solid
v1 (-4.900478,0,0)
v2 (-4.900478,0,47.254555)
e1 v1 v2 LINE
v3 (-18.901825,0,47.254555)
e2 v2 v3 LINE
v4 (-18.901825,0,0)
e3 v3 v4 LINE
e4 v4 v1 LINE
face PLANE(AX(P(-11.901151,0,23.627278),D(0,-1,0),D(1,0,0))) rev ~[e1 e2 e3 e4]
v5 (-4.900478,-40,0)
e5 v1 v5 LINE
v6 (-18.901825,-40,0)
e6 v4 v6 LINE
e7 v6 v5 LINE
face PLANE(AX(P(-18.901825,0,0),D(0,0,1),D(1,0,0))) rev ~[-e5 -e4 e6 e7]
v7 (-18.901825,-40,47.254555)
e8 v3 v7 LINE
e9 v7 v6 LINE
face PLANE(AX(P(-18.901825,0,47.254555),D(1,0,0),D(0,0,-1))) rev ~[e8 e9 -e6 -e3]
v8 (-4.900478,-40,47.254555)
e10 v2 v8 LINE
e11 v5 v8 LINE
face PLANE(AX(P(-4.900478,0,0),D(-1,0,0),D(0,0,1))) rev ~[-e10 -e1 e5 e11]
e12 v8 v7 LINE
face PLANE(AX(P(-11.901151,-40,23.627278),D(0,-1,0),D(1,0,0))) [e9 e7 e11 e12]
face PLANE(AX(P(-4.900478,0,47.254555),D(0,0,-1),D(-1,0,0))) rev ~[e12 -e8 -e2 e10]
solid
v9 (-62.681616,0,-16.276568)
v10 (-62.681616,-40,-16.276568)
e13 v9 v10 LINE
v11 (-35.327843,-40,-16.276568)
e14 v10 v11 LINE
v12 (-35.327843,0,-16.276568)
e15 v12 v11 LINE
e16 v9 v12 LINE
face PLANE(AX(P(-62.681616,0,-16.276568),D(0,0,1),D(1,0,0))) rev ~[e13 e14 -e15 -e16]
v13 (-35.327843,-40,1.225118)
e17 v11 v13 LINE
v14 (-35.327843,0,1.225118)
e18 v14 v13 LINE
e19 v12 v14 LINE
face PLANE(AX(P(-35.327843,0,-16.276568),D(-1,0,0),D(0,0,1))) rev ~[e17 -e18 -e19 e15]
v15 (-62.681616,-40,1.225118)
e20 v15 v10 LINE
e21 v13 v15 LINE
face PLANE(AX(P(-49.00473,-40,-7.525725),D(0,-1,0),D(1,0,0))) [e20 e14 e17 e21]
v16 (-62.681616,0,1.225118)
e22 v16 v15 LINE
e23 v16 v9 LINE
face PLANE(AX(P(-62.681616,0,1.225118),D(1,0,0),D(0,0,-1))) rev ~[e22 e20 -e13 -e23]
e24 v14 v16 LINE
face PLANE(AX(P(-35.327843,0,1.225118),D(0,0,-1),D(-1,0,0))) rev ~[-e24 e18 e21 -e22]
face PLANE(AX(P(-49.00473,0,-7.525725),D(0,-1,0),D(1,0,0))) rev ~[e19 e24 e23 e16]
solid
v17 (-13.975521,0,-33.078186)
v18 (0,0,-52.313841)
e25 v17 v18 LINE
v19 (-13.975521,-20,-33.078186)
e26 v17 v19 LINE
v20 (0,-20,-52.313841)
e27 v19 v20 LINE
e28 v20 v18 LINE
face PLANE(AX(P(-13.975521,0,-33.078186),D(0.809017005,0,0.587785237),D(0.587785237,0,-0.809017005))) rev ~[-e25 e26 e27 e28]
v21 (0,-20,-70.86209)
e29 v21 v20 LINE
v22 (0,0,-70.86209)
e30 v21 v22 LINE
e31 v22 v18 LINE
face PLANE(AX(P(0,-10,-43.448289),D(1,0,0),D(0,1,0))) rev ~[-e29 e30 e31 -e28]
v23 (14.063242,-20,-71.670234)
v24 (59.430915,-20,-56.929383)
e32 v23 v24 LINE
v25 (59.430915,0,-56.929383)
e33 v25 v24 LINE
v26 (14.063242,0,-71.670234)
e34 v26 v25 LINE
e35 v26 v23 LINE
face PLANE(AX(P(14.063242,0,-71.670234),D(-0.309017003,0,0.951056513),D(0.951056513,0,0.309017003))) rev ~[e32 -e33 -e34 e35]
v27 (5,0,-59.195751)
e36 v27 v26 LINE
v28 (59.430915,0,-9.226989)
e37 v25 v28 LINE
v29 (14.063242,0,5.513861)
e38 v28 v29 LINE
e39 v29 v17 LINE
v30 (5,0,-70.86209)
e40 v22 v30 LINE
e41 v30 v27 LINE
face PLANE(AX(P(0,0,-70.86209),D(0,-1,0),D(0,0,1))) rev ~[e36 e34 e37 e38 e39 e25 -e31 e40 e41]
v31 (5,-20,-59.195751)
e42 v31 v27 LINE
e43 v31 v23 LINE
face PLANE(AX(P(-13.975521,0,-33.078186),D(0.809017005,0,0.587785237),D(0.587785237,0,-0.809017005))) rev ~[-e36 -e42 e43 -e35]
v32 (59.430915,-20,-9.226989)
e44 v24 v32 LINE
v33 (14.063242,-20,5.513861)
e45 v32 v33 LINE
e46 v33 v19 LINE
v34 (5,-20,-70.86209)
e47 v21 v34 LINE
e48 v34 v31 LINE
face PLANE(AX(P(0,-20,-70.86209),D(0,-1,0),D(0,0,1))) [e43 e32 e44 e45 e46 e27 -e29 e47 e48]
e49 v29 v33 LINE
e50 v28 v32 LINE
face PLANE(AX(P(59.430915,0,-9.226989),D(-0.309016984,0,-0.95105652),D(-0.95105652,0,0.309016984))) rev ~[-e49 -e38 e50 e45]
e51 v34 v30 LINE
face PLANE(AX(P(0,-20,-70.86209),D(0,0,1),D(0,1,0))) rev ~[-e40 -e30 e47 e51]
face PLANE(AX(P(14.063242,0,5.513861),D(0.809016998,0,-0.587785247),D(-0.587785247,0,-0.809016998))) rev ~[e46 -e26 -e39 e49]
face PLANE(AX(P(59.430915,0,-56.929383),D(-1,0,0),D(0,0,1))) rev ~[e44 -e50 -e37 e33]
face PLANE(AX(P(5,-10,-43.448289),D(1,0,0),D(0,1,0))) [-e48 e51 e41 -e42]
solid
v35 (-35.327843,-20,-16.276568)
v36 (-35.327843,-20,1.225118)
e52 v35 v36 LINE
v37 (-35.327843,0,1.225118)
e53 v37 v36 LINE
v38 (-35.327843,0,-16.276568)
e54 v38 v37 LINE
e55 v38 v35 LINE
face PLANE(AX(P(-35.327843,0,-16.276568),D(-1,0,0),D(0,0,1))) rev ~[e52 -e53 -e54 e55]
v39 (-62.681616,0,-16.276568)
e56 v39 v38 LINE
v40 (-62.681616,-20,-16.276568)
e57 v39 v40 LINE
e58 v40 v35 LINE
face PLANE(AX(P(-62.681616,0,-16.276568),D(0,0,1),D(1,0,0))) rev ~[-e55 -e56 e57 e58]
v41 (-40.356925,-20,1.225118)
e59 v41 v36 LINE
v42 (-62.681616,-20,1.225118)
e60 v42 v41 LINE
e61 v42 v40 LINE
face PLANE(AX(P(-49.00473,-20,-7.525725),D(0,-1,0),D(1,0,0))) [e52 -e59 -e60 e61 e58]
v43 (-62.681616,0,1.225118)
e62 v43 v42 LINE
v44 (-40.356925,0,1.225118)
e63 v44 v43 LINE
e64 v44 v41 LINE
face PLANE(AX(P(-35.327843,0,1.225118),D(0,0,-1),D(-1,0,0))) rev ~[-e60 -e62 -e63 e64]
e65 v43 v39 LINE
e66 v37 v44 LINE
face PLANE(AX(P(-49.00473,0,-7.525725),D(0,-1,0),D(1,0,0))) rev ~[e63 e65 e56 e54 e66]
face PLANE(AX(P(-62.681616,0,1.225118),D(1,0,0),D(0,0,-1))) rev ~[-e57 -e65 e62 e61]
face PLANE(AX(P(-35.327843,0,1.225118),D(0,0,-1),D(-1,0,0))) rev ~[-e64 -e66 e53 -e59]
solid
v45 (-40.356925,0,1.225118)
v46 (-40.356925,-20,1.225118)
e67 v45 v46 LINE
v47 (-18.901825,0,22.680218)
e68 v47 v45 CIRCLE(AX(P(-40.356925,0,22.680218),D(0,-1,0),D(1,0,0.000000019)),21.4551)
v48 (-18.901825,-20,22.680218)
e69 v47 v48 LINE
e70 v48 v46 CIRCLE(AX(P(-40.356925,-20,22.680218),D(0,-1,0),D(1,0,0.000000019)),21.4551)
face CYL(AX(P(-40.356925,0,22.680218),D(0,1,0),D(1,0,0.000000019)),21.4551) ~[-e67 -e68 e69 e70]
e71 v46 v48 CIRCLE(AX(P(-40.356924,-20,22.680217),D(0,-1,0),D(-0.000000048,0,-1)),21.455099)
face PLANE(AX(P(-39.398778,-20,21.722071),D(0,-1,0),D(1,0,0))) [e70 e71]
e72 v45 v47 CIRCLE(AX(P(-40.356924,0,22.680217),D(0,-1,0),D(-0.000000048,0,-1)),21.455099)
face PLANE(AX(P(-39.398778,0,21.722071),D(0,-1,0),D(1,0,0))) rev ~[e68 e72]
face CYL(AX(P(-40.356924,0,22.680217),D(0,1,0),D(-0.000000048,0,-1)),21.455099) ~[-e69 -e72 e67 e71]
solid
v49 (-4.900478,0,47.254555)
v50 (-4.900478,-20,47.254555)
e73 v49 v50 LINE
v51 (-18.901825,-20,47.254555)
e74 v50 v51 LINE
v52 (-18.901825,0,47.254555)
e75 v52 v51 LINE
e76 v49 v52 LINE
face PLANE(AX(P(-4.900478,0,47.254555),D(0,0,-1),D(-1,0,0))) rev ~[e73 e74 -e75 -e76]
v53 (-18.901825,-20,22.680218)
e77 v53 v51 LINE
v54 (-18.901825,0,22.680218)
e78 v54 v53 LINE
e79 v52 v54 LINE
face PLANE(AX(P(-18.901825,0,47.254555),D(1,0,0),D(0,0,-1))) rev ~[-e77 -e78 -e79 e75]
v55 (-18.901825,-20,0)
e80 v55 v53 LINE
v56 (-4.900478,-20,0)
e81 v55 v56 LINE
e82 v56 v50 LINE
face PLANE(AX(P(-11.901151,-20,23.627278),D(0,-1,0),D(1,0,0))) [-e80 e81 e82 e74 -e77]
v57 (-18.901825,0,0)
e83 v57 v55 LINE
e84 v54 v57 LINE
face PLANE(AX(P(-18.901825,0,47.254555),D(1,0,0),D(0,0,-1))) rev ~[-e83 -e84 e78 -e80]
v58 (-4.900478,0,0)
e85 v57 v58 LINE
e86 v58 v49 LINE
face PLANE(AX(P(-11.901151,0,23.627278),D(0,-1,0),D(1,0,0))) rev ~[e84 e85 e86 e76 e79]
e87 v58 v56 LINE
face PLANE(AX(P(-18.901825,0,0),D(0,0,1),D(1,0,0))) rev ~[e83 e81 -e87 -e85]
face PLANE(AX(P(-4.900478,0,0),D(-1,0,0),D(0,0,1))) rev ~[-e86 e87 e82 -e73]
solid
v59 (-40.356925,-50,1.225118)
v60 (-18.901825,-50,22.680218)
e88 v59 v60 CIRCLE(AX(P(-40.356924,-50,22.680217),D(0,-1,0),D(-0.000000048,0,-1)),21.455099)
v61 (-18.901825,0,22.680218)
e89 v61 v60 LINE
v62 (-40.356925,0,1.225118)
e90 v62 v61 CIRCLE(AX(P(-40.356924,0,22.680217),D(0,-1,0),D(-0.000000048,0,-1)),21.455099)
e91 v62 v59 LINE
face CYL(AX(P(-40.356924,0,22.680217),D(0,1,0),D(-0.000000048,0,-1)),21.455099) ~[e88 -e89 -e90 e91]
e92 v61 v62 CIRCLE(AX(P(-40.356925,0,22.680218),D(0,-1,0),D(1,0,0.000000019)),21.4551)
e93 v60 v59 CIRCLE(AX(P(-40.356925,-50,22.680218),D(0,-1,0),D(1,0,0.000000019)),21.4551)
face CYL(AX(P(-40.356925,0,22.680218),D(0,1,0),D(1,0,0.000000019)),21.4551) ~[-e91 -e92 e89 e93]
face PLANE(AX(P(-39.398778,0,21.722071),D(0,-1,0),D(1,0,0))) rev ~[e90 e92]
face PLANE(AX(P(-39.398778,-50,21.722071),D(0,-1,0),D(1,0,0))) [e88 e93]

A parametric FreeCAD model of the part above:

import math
import FreeCAD as App
import Part
import Sketcher

V = App.Vector
Q = App.Units.Quantity


def add_polygon(sketch, points):
    """Adds a closed chain of lines whose ends are joined by coincident constraints."""
    first, n = sketch.GeometryCount, len(points)
    for a, b in zip(points, points[1:] + points[:1]):
        sketch.addGeometry(Part.LineSegment(App.Vector(*a, 0), App.Vector(*b, 0)), False)
    for i in range(n):
        sketch.addConstraint(Sketcher.Constraint("Coincident", first + i, 2, first + (i + 1) % n, 1))

doc = App.newDocument("Part")
params = doc.addObject("Spreadsheet::Sheet", "Params")
for row, (alias, value) in enumerate([
    ("pad1_length", "40 mm"),
    ("pad2_length", "50 mm"),
    ("pad3_length", "20 mm"),
    ("sketch4_width", "20 mm"),
    ("pad4_length", "5 mm"),
], start=1):
    params.set(f"A{row}", alias)
    params.set(f"B{row}", "=" + value)
    params.setAlias(f"B{row}", alias)

body = doc.addObject("PartDesign::Body", "Body")
body.AllowCompound = True

# Sketch on XZ plane
sketch1 = body.newObject("Sketcher::SketchObject", "Sketch")
sketch1.AttachmentSupport = (doc.getObject("XZ_Plane"), [""])
sketch1.MapMode = "FlatFace"
add_polygon(sketch1, [(-19, 47), (-19, 0), (-5, 0), (-5, 47)])  # lines 0-3
add_polygon(sketch1, [(-35, 1), (-63, 1), (-63, -16), (-35, -16)])  # lines 4-7
sketch1.addConstraint([
    Sketcher.Constraint("Vertical", 0),
    Sketcher.Constraint("Horizontal", 1),
    Sketcher.Constraint("Vertical", 2),
    Sketcher.Constraint("Horizontal", 3),
    Sketcher.Constraint("Horizontal", 4),
    Sketcher.Constraint("Vertical", 5),
    Sketcher.Constraint("Horizontal", 6),
    Sketcher.Constraint("Vertical", 7),
    Sketcher.Constraint("PointOnObject", 0, 2, -1),
    Sketcher.Constraint("DistanceX", 1, 1, 1, 2, 14.001347),
    Sketcher.Constraint("DistanceX", 4, 2, 4, 1, 27.353773),
    Sketcher.Constraint("DistanceY", 0, 2, 0, 1, 47.254555),
    Sketcher.Constraint("DistanceY", 5, 2, 5, 1, 17.501686),
    Sketcher.Constraint("DistanceY", 5, 2, -1, 1, 16.276568),
    Sketcher.Constraint("DistanceX", 4, 2, 0, 2, 43.779791),
    Sketcher.Constraint("DistanceX", 0, 2, -1, 1, 18.901825),
])
pad1 = body.newObject("PartDesign::Pad", "Pad")
pad1.Profile = sketch1
pad1.setExpression("Length", "Params.pad1_length")
body2 = doc.addObject("PartDesign::Body", "Body001")

# Sketch on XZ plane
sketch2 = body2.newObject("Sketcher::SketchObject", "Sketch001")
sketch2.AttachmentSupport = (doc.getObject("XZ_Plane001"), [""])
sketch2.MapMode = "FlatFace"
sketch2.addGeometry([
    Part.ArcOfCircle(Part.Circle(V(-40, 23, 0), V(0, 0, 1), 21), math.radians(-90), math.radians(0)),
    Part.ArcOfCircle(Part.Circle(V(-40, 23, 0), V(0, 0, 1), 21), math.radians(0), math.radians(270)),
], False)
sketch2.addConstraint([
    Sketcher.Constraint("Tangent", 0, 1, 1, 2),
    Sketcher.Constraint("Coincident", 1, 1, 0, 2),
    Sketcher.Constraint("Horizontal", 0, 3, 1, 1),
    Sketcher.Constraint("Vertical", 1, 3, 0, 1),
    Sketcher.Constraint("Radius", 0, 21.455099),
    Sketcher.Constraint("DistanceY", -1, 1, 0, 1, 1.225118),
    Sketcher.Constraint("DistanceX", 0, 3, -1, 1, 40.356924),
])
pad2 = body2.newObject("PartDesign::Pad", "Pad001")
pad2.Profile = sketch2
pad2.setExpression("Length", "Params.pad2_length")
body3 = doc.addObject("PartDesign::Body", "Body002")
body3.AllowCompound = True

# Sketch on XZ plane
sketch3 = body3.newObject("Sketcher::SketchObject", "Sketch002")
sketch3.AttachmentSupport = (doc.getObject("XZ_Plane002"), [""])
sketch3.MapMode = "FlatFace"
sketch3.addGeometry(Part.ArcOfCircle(Part.Circle(V(-40, 23, 0), V(0, 0, 1), 21), math.radians(-90), math.radians(0)), False)  # 0
sketch3.addGeometry(Part.ArcOfCircle(Part.Circle(V(-40, 23, 0), V(0, 0, 1), 21), math.radians(0), math.radians(270)), False)  # 1
add_polygon(sketch3, [(-19, 47), (-19, 23), (-19, 0), (-5, 0), (-5, 47)])  # lines 2-6
add_polygon(sketch3, [(-35, 1), (-40, 1), (-63, 1), (-63, -16), (-35, -16)])  # lines 7-11
add_polygon(sketch3, [(59, -57), (59, -9), (14, 6), (-14, -33), (14, -72)])  # lines 12-16
sketch3.addConstraint([
    Sketcher.Constraint("Tangent", 0, 1, 1, 2),
    Sketcher.Constraint("Coincident", 1, 1, 0, 2),
    Sketcher.Constraint("Vertical", 2),
    Sketcher.Constraint("Vertical", 3),
    Sketcher.Constraint("Horizontal", 4),
    Sketcher.Constraint("Vertical", 5),
    Sketcher.Constraint("Horizontal", 6),
    Sketcher.Constraint("Horizontal", 7),
    Sketcher.Constraint("Horizontal", 8),
    Sketcher.Constraint("Vertical", 9),
    Sketcher.Constraint("Horizontal", 10),
    Sketcher.Constraint("Vertical", 11),
    Sketcher.Constraint("Vertical", 12),
    Sketcher.Constraint("Coincident", 2, 2, 1, 1),
    Sketcher.Constraint("Coincident", 7, 2, 0, 1),
    Sketcher.Constraint("PointOnObject", 3, 2, -1),
    Sketcher.Constraint("Horizontal", 0, 3, 1, 1),
    Sketcher.Constraint("Vertical", 1, 3, 0, 1),
    Sketcher.Constraint("Vertical", 13, 2, 15, 2),
    Sketcher.Constraint("Equal", 13, 14),
    Sketcher.Constraint("Equal", 14, 15),
    Sketcher.Constraint("Equal", 15, 16),
    Sketcher.Constraint("Angle", 13, Q("162.000001 deg")),
    Sketcher.Constraint("Angle", 14, Q("-126 deg")),
    Sketcher.Constraint("Radius", 0, 21.455099),
    Sketcher.Constraint("DistanceX", 7, 2, 7, 1, 5.029082),
    Sketcher.Constraint("DistanceX", 8, 2, 8, 1, 22.324691),
    Sketcher.Constraint("DistanceY", 3, 2, 3, 1, 22.680218),
    Sketcher.Constraint("DistanceX", 4, 1, 4, 2, 14.001347),
    Sketcher.Constraint("DistanceY", 2, 2, 2, 1, 24.574337),
    Sketcher.Constraint("DistanceY", 9, 2, 9, 1, 17.501686),
    Sketcher.Constraint("DistanceY", 12, 1, 12, 2, 47.702394),
    Sketcher.Constraint("DistanceY", 12, 2, -1, 1, 9.226989),
    Sketcher.Constraint("DistanceX", 14, 2, -1, 1, 13.975521),
    Sketcher.Constraint("DistanceX", 3, 2, 12, 2, 78.33274),
])
pad3 = body3.newObject("PartDesign::Pad", "Pad002")
pad3.Profile = sketch3
pad3.setExpression("Length", "Params.pad3_length")

# Sketch on YZ plane
sketch4 = body3.newObject("Sketcher::SketchObject", "Sketch003")
sketch4.AttachmentSupport = (doc.getObject("YZ_Plane002"), [""])
sketch4.MapMode = "FlatFace"
add_polygon(sketch4, [(-20, -16), (-20, -71), (0, -71), (0, -16)])  # lines 0-3
sketch4.addConstraint([
    Sketcher.Constraint("Vertical", 0),
    Sketcher.Constraint("Horizontal", 1),
    Sketcher.Constraint("Vertical", 2),
    Sketcher.Constraint("Horizontal", 3),
    Sketcher.Constraint("PointOnObject", 1, 2, -2),
    Sketcher.Constraint("DistanceX", 1, 1, 1, 2, 20.0),
    Sketcher.Constraint("DistanceY", 0, 2, 0, 1, 54.827603),
    Sketcher.Constraint("DistanceY", 0, 2, -1, 1, 70.86209),
])
sketch4.setExpression("Constraints[9]", "Params.sketch4_width")
pad4 = body3.newObject("PartDesign::Pad", "Pad003")
pad4.Profile = sketch4
pad4.setExpression("Length", "Params.pad4_length")

doc.recompute()
